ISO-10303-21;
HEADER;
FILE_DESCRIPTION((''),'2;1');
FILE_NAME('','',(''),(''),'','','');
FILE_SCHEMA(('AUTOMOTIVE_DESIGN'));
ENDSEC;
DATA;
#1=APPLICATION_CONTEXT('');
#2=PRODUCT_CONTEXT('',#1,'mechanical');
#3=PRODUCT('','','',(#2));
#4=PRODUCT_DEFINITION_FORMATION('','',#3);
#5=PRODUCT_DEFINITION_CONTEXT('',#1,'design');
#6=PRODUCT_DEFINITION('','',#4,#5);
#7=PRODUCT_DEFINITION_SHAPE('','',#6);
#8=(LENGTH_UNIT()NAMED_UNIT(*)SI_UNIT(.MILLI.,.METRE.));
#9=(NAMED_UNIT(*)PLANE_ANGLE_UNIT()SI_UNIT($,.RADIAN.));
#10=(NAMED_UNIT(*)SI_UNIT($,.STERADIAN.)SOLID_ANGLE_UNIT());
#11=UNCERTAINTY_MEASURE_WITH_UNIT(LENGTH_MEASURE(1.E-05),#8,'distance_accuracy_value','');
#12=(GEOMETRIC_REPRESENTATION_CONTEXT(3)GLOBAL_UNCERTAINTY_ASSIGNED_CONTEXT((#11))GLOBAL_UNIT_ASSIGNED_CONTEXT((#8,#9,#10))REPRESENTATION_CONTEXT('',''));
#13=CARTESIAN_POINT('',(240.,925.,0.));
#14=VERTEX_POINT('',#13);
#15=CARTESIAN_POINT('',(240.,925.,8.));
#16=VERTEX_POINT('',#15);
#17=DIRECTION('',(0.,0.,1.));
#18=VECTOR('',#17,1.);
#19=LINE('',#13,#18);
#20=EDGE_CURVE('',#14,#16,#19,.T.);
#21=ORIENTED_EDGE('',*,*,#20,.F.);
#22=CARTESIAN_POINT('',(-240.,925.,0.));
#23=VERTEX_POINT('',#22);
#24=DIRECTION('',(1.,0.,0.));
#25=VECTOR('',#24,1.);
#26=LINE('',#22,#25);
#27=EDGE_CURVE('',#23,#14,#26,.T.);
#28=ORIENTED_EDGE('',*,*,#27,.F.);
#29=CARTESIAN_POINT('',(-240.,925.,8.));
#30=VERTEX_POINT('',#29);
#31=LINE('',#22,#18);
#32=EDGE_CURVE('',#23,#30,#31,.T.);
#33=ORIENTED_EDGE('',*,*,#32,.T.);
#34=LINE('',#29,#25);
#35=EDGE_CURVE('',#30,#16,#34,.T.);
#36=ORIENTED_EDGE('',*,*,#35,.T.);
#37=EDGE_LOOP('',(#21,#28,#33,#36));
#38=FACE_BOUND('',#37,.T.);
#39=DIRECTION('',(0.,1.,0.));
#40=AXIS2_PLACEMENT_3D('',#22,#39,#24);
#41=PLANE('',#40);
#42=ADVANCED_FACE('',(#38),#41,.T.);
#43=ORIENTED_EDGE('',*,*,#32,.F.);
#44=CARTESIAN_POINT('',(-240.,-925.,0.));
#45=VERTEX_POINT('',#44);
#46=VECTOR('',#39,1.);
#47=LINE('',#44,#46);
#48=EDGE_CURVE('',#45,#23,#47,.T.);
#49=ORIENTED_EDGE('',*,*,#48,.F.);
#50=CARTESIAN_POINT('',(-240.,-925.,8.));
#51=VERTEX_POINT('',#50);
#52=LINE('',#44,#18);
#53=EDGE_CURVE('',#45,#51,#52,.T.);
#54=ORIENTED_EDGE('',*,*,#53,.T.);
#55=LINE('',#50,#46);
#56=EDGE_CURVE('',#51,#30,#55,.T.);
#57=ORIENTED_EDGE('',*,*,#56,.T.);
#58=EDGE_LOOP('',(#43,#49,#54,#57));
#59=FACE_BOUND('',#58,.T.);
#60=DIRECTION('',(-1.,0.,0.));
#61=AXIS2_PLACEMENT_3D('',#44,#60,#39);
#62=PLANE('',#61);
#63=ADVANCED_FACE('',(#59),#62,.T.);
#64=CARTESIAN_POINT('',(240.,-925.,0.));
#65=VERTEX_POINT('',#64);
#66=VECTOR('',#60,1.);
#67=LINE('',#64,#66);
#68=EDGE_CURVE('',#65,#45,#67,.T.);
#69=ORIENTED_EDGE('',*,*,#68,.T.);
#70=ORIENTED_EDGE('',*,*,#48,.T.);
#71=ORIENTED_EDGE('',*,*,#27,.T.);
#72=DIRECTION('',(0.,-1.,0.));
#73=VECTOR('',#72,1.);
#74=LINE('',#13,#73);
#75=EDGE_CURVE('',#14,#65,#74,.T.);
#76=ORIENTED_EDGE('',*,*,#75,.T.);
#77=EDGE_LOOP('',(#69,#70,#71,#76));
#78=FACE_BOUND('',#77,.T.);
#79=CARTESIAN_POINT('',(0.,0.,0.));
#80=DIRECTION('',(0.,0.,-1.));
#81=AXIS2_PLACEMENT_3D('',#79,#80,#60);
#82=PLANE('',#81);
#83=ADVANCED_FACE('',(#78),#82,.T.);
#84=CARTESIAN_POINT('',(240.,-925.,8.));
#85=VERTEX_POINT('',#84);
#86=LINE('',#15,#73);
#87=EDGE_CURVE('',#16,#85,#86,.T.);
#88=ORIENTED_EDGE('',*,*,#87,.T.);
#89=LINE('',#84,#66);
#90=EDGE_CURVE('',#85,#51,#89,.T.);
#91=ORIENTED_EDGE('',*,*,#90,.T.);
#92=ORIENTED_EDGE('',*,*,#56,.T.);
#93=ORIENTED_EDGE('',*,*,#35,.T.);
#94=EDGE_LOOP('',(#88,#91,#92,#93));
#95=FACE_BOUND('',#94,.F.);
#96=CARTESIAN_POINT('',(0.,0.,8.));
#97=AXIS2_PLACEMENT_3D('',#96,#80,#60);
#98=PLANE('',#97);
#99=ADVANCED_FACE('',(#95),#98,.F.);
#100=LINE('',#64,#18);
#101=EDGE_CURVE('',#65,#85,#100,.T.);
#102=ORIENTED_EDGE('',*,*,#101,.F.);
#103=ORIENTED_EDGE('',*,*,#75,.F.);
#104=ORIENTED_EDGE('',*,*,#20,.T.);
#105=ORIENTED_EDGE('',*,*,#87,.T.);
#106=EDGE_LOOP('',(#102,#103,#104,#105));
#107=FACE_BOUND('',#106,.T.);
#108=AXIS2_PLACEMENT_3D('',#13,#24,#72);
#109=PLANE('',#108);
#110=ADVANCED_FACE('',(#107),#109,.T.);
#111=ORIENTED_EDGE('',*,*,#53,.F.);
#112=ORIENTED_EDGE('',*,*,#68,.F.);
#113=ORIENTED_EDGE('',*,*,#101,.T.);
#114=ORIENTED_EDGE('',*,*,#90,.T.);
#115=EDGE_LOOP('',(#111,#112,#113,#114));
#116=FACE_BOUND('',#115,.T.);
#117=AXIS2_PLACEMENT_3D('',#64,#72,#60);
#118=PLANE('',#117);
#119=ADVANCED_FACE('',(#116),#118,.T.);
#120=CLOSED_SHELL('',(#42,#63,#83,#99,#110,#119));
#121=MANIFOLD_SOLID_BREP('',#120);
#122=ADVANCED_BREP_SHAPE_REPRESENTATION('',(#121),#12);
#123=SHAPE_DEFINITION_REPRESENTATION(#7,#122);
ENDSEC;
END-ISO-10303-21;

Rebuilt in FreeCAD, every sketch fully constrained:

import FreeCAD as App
import Part
import Sketcher
from FreeCAD import Vector
Q = App.Units.Quantity

doc = App.newDocument("Part")
body = doc.addObject("PartDesign::Body", "Body")

# Sketch on XY plane
sketch1 = body.newObject("Sketcher::SketchObject", "Sketch")
sketch1.AttachmentSupport = (doc.getObject("XY_Plane"), [""])
sketch1.MapMode = "FlatFace"
sketch1.addGeometry(Part.LineSegment(Vector(240, 925, 0), Vector(240, -925, 0)), False)
sketch1.addGeometry(Part.LineSegment(Vector(240, -925, 0), Vector(-240, -925, 0)), False)
sketch1.addGeometry(Part.LineSegment(Vector(-240, -925, 0), Vector(-240, 925, 0)), False)
sketch1.addGeometry(Part.LineSegment(Vector(-240, 925, 0), Vector(240, 925, 0)), False)
sketch1.addConstraint(Sketcher.Constraint("Coincident", 0, 2, 1, 1))
sketch1.addConstraint(Sketcher.Constraint("Coincident", 1, 2, 2, 1))
sketch1.addConstraint(Sketcher.Constraint("Coincident", 2, 2, 3, 1))
sketch1.addConstraint(Sketcher.Constraint("Coincident", 3, 2, 0, 1))
sketch1.addConstraint(Sketcher.Constraint("Vertical", 0))
sketch1.addConstraint(Sketcher.Constraint("Horizontal", 1))
sketch1.addConstraint(Sketcher.Constraint("Vertical", 2))
sketch1.addConstraint(Sketcher.Constraint("Horizontal", 3))
sketch1.addConstraint(Sketcher.Constraint("Symmetric", 0, 2, 2, 2, -1, 1))
sketch1.addConstraint(Sketcher.Constraint("DistanceX", 1, 2, 1, 1, Q("480 mm")))
sketch1.addConstraint(Sketcher.Constraint("DistanceY", 0, 2, 0, 1, Q("1850 mm")))
pad1 = body.newObject("PartDesign::Pad", "Pad")
pad1.Profile = sketch1
pad1.Length = 8

doc.recompute()
